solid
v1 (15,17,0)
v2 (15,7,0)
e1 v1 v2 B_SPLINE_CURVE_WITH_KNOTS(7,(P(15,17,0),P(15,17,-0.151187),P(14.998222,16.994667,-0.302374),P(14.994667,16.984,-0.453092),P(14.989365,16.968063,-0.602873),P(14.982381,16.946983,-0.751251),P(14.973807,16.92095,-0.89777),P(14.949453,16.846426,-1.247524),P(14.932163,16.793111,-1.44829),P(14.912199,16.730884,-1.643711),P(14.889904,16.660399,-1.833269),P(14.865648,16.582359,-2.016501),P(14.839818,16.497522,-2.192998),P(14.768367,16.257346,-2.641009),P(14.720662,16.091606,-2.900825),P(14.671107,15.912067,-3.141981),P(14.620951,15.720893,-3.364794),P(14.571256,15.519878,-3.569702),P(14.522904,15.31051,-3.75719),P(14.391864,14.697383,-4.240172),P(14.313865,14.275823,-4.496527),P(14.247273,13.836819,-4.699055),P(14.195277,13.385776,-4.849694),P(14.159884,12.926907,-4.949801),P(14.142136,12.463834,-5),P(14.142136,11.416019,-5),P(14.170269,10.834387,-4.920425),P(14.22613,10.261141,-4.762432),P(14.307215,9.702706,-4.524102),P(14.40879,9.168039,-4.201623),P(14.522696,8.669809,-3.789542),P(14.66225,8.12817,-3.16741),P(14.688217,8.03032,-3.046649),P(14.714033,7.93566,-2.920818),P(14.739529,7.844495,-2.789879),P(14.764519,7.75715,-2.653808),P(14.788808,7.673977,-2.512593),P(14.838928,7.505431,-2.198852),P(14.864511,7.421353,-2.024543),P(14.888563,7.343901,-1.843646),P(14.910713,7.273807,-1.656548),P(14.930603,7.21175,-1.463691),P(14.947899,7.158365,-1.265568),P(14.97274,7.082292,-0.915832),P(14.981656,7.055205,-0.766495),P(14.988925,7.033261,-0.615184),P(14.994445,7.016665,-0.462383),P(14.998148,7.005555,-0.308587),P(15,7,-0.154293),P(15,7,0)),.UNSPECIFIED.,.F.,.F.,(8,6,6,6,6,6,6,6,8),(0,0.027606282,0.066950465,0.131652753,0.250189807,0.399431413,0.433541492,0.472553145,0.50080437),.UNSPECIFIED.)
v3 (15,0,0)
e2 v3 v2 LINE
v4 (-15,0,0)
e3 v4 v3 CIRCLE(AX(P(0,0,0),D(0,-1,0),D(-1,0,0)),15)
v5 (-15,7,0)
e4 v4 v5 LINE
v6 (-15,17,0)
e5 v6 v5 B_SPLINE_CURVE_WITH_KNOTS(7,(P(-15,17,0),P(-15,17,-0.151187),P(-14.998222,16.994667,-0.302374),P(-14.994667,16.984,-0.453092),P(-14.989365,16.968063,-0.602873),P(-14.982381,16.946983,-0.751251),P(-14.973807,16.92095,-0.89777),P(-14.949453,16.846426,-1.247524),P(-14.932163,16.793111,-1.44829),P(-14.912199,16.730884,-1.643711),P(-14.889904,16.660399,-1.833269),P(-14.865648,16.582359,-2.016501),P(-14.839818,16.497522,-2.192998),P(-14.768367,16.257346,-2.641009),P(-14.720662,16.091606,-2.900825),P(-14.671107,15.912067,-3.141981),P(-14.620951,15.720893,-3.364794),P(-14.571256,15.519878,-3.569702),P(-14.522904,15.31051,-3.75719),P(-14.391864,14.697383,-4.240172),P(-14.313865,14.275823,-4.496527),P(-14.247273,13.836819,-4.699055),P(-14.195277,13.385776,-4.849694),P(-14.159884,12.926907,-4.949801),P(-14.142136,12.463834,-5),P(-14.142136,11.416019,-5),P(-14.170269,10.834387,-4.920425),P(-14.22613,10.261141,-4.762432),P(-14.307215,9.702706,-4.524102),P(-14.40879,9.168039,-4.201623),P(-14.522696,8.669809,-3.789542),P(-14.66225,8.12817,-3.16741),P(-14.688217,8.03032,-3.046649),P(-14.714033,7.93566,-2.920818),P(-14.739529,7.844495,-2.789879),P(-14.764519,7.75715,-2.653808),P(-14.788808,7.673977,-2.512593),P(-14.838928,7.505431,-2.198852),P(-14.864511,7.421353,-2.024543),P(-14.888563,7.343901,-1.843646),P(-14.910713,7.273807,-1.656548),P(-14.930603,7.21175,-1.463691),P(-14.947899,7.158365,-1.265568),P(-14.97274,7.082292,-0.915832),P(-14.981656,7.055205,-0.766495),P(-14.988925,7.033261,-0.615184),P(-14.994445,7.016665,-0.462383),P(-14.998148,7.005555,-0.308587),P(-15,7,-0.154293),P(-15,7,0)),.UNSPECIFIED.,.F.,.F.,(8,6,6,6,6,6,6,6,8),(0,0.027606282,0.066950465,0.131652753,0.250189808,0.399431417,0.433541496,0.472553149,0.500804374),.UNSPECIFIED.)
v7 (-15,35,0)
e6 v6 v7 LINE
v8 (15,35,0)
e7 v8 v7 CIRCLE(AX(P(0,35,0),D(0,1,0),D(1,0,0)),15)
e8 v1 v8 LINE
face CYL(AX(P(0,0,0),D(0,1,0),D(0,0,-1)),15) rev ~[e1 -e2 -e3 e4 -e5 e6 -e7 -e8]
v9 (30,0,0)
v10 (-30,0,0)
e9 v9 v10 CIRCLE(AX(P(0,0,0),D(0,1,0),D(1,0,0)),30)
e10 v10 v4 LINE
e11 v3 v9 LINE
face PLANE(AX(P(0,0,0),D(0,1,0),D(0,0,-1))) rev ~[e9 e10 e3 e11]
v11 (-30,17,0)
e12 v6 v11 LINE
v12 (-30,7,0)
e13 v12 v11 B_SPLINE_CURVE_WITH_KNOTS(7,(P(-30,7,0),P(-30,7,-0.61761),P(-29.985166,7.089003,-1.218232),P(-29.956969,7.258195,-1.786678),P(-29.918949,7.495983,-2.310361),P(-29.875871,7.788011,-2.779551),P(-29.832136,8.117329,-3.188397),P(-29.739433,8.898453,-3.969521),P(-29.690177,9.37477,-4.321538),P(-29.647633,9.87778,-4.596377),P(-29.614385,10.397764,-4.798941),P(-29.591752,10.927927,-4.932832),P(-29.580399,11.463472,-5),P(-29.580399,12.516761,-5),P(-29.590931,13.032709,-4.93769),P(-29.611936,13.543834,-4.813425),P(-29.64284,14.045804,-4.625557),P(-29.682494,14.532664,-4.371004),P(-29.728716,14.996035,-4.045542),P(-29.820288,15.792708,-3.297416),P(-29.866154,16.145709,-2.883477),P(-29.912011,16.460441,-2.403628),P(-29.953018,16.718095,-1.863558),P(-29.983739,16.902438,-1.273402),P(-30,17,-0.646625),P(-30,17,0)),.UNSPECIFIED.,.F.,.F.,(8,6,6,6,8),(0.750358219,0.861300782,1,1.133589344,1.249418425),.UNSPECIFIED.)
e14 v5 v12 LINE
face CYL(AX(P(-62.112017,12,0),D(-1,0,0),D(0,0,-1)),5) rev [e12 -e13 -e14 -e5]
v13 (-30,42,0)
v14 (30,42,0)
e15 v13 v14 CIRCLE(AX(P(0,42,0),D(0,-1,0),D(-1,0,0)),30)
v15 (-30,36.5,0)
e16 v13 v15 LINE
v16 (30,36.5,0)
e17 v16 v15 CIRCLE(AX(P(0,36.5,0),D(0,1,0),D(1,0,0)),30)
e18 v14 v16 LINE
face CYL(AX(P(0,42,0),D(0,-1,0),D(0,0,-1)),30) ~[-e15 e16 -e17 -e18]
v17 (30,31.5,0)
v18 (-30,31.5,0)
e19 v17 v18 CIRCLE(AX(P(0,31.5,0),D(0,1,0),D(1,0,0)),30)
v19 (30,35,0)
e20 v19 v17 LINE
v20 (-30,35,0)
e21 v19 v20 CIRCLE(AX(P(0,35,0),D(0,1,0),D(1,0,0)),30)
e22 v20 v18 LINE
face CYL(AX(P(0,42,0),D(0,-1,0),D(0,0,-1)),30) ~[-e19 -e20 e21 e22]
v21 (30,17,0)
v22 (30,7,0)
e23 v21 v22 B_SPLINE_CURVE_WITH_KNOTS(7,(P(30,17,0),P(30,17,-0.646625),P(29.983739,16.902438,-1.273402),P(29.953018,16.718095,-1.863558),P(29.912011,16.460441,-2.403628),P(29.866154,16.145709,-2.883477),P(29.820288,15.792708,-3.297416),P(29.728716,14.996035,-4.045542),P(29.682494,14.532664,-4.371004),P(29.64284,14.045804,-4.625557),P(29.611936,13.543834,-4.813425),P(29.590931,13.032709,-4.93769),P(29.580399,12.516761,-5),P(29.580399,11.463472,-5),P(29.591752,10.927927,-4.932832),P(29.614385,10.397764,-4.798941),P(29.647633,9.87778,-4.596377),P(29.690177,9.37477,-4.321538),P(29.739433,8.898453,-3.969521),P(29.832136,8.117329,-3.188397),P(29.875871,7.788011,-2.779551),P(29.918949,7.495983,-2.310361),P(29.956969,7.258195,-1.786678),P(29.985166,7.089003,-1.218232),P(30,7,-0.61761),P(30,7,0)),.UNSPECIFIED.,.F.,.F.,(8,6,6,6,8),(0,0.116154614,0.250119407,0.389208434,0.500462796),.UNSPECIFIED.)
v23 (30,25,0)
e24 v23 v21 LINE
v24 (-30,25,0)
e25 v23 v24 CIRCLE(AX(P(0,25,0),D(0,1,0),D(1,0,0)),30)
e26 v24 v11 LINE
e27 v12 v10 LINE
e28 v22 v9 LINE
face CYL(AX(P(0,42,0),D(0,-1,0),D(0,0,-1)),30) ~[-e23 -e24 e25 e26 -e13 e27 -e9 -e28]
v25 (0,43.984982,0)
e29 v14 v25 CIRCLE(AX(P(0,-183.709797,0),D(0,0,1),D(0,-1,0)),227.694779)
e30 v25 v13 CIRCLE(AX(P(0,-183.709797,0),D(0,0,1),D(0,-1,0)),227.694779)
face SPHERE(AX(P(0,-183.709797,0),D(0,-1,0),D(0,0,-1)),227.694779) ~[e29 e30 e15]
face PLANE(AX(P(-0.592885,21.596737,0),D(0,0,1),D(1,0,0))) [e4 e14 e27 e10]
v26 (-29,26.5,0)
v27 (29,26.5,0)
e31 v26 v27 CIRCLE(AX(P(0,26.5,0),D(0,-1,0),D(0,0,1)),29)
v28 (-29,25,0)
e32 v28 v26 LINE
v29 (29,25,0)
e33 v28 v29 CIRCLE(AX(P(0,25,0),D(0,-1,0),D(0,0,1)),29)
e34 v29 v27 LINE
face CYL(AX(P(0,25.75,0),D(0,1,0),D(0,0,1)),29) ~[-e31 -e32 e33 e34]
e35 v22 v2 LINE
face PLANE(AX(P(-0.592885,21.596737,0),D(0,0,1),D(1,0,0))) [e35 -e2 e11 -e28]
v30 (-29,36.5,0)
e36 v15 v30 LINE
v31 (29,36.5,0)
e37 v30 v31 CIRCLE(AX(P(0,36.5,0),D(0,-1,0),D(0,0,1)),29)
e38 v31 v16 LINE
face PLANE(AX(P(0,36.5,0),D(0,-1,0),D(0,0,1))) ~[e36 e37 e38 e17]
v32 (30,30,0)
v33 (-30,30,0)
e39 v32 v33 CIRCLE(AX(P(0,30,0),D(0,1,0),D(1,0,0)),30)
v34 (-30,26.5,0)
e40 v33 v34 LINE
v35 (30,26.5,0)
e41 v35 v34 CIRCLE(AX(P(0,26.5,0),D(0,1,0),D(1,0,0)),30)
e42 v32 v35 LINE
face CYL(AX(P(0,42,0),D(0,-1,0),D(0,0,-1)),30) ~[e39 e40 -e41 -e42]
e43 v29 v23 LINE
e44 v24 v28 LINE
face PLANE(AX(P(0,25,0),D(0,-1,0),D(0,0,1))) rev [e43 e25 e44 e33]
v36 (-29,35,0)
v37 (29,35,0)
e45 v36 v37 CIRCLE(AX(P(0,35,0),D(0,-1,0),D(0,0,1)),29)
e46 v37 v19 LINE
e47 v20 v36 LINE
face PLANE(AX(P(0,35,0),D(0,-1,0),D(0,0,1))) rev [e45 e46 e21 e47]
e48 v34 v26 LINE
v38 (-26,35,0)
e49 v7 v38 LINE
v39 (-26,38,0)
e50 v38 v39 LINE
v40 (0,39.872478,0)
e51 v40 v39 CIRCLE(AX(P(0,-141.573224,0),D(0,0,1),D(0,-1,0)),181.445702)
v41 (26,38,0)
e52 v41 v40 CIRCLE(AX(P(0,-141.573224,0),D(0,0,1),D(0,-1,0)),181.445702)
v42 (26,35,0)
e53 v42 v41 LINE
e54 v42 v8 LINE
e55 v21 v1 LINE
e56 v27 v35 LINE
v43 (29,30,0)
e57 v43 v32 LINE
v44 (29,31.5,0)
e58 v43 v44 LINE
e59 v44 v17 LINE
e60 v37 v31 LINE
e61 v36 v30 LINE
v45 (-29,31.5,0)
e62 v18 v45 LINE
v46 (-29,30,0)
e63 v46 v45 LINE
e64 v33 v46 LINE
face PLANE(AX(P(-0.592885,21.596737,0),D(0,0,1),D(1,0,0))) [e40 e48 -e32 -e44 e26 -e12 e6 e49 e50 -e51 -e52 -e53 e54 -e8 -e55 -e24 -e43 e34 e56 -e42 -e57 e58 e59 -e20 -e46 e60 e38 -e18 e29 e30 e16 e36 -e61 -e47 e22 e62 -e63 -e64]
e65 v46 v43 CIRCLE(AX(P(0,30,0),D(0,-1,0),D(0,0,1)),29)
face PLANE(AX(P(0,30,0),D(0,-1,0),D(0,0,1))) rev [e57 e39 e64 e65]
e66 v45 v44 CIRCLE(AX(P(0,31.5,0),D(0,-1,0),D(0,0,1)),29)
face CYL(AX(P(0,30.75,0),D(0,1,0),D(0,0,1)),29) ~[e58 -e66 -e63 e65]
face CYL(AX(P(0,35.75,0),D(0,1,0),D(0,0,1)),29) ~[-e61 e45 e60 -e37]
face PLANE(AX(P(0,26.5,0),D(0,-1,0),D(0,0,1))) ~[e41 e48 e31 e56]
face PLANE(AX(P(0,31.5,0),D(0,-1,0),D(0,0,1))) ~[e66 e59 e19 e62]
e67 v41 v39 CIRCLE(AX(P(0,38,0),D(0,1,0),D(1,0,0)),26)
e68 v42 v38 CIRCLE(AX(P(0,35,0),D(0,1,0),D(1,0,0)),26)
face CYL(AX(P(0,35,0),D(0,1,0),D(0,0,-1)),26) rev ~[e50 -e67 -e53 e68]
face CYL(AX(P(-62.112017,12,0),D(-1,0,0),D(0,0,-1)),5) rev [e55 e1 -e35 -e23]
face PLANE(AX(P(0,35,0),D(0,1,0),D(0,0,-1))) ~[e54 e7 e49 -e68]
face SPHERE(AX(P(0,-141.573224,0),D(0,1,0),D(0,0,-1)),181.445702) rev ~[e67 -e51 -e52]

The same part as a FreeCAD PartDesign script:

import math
import FreeCAD as App
import Part
import Sketcher
from FreeCAD import Vector


def add_polygon(sketch, points):
    """Adds a closed chain of lines whose ends are joined by coincident constraints."""
    first, n = sketch.GeometryCount, len(points)
    for a, b in zip(points, points[1:] + points[:1]):
        sketch.addGeometry(Part.LineSegment(App.Vector(*a, 0), App.Vector(*b, 0)), False)
    for i in range(n):
        sketch.addConstraint(Sketcher.Constraint("Coincident", first + i, 2, first + (i + 1) % n, 1))

doc = App.newDocument("Part")
body = doc.addObject("PartDesign::Body", "Body")

# Sketch on XY plane
sketch1 = body.newObject("Sketcher::SketchObject", "Sketch")
sketch1.AttachmentSupport = (doc.getObject("XY_Plane"), [""])
sketch1.MapMode = "FlatFace"
sketch1.addGeometry([
    Part.LineSegment(Vector(-30, 42, 0), Vector(-30, 0, 0)),  # 0
    Part.LineSegment(Vector(-30, 0, 0), Vector(-15, 0, 0)),  # 1
    Part.LineSegment(Vector(-15, 0, 0), Vector(-15, 35, 0)),  # 2
    Part.LineSegment(Vector(-15, 35, 0), Vector(-26, 35, 0)),  # 3
    Part.LineSegment(Vector(-26, 35, 0), Vector(-26, 38, 0)),  # 4
    Part.ArcOfCircle(Part.Circle(Vector(0, -141.573224, 0), Vector(0, 0, 1), 181.445702), math.radians(90), math.radians(98.238475)),  # 5
    Part.LineSegment(Vector(0, 39.872478, 0), Vector(0, 43.984982, 0)),  # 6
    Part.ArcOfCircle(Part.Circle(Vector(0, -183.709797, 0), Vector(0, 0, 1), 227.694779), math.radians(90), math.radians(97.571038)),  # 7
], False)
sketch1.addConstraint([
    Sketcher.Constraint("Coincident", 0, 2, 1, 1),
    Sketcher.Constraint("Coincident", 1, 2, 2, 1),
    Sketcher.Constraint("Coincident", 2, 2, 3, 1),
    Sketcher.Constraint("Coincident", 3, 2, 4, 1),
    Sketcher.Constraint("Coincident", 4, 2, 5, 2),
    Sketcher.Constraint("Coincident", 5, 1, 6, 1),
    Sketcher.Constraint("Coincident", 6, 2, 7, 1),
    Sketcher.Constraint("Coincident", 7, 2, 0, 1),
    Sketcher.Constraint("Vertical", 0),
    Sketcher.Constraint("Horizontal", 1),
    Sketcher.Constraint("Vertical", 2),
    Sketcher.Constraint("Horizontal", 3),
    Sketcher.Constraint("Vertical", 4),
    Sketcher.Constraint("Vertical", 6),
    Sketcher.Constraint("PointOnObject", 5, 3, -2),
    Sketcher.Constraint("PointOnObject", 7, 3, -2),
    Sketcher.Constraint("PointOnObject", 0, 2, -1),
    Sketcher.Constraint("PointOnObject", 5, 1, -2),
    Sketcher.Constraint("DistanceX", 1, 1, 1, 2, 15.0),
    Sketcher.Constraint("DistanceX", 3, 2, 3, 1, 11.0),
    Sketcher.Constraint("DistanceY", 0, 2, 0, 1, 42.0),
    Sketcher.Constraint("DistanceY", 2, 1, 2, 2, 35.0),
    Sketcher.Constraint("DistanceY", 4, 1, 4, 2, 3.0),
    Sketcher.Constraint("DistanceX", 0, 2, -1, 1, 30.0),
    Sketcher.Constraint("Radius", 7, 227.694779),
    Sketcher.Constraint("Radius", 5, 181.445702),
])
revolution = body.newObject("PartDesign::Revolution", "Revolution")
revolution.Profile = sketch1
revolution.ReferenceAxis = (sketch1, ["V_Axis"])
revolution.Angle = 360

# Sketch on YZ plane
sketch2 = body.newObject("Sketcher::SketchObject", "Sketch001")
sketch2.AttachmentSupport = (doc.getObject("YZ_Plane"), [""])
sketch2.MapMode = "FlatFace"
sketch2.addGeometry(Part.Circle(Vector(12, 0, 0), Vector(0, 0, 1), 5), False)
sketch2.addConstraint([
    Sketcher.Constraint("PointOnObject", 0, 3, -1),
    Sketcher.Constraint("Diameter", 0, 10.0),
    Sketcher.Constraint("DistanceX", -1, 1, 0, 3, 12.0),
])
pocket1 = body.newObject("PartDesign::Pocket", "Pocket")
pocket1.Profile = sketch2
pocket1.Type = "ThroughAll"
pocket1.Midplane = True

# Sketch on YZ plane
sketch3 = body.newObject("Sketcher::SketchObject", "Sketch002")
sketch3.AttachmentSupport = (doc.getObject("YZ_Plane"), [""])
sketch3.MapMode = "FlatFace"
add_polygon(sketch3, [(26.5, -29), (25, -29), (25, -30), (26.5, -30)])  # lines 0-3
add_polygon(sketch3, [(31.5, -29), (30, -29), (30, -30), (31.5, -30)])  # lines 4-7
add_polygon(sketch3, [(36.5, -29), (35, -29), (35, -30), (36.5, -30)])  # lines 8-11
sketch3.addConstraint([
    Sketcher.Constraint("Horizontal", 0),
    Sketcher.Constraint("Vertical", 1),
    Sketcher.Constraint("Horizontal", 2),
    Sketcher.Constraint("Vertical", 3),
    Sketcher.Constraint("Horizontal", 4),
    Sketcher.Constraint("Vertical", 5),
    Sketcher.Constraint("Horizontal", 6),
    Sketcher.Constraint("Vertical", 7),
    Sketcher.Constraint("Horizontal", 8),
    Sketcher.Constraint("Vertical", 9),
    Sketcher.Constraint("Horizontal", 10),
    Sketcher.Constraint("Vertical", 11),
    Sketcher.Constraint("Horizontal", 3, 2, 4, 2),
    Sketcher.Constraint("Horizontal", 2, 2, 5, 2),
    Sketcher.Constraint("Horizontal", 7, 2, 8, 2),
    Sketcher.Constraint("Horizontal", 6, 2, 9, 2),
    Sketcher.Constraint("Equal", 2, 4),
    Sketcher.Constraint("Equal", 6, 8),
    Sketcher.Constraint("DistanceY", 1, 2, 1, 1, 1.0),
    Sketcher.Constraint("DistanceX", 0, 2, 0, 1, 1.5),
    Sketcher.Constraint("DistanceX", -1, 1, 0, 2, 25.0),
    Sketcher.Constraint("DistanceY", 0, 2, -1, 1, 29.0),
    Sketcher.Constraint("DistanceX", -1, 1, 4, 2, 30.0),
    Sketcher.Constraint("DistanceX", -1, 1, 8, 2, 35.0),
])
groove = body.newObject("PartDesign::Groove", "Groove")
groove.Profile = sketch3
groove.ReferenceAxis = (sketch3, ["H_Axis"])
groove.Angle = 360

# Sketch on XY plane
sketch4 = body.newObject("Sketcher::SketchObject", "Sketch003")
sketch4.AttachmentSupport = (doc.getObject("XY_Plane"), [""])
sketch4.MapMode = "FlatFace"
add_polygon(sketch4, [(-52.451286, 54.234891), (-52.451286, -11.041418), (51.265516, -11.041418), (51.265516, 54.234891)])  # lines 0-3
sketch4.addConstraint([
    Sketcher.Constraint("Vertical", 0),
    Sketcher.Constraint("Horizontal", 1),
    Sketcher.Constraint("Vertical", 2),
    Sketcher.Constraint("Horizontal", 3),
    Sketcher.Constraint("DistanceX", 1, 1, 1, 2, 103.716802),
    Sketcher.Constraint("DistanceY", 0, 2, 0, 1, 65.276309),
    Sketcher.Constraint("DistanceY", -1, 1, 2, 2, 54.234891),
    Sketcher.Constraint("DistanceX", 0, 2, -1, 1, 52.451286),
])
pocket2 = body.newObject("PartDesign::Pocket", "Pocket001")
pocket2.Profile = sketch4
pocket2.Length = 40
pocket2.Reversed = True

doc.recompute()
